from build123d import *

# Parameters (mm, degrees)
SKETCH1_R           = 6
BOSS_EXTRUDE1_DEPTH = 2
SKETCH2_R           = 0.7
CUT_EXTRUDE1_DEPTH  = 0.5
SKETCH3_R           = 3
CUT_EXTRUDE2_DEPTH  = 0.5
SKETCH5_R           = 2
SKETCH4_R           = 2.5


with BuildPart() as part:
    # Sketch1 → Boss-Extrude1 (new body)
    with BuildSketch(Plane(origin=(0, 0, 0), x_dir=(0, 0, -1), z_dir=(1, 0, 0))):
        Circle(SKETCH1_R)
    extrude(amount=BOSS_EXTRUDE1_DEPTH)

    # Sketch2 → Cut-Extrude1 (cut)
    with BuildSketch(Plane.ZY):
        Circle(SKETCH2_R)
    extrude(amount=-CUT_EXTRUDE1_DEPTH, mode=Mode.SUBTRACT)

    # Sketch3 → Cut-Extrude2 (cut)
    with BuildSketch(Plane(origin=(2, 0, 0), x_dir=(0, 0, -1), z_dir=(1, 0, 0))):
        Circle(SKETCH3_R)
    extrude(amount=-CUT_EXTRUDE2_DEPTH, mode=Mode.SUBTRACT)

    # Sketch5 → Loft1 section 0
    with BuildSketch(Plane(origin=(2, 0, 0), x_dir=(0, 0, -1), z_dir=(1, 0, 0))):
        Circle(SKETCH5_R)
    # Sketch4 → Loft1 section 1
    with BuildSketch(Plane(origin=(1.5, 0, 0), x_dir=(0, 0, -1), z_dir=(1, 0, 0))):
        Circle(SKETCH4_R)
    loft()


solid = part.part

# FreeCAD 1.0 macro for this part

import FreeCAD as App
import Part
import Sketcher

doc = App.newDocument("Part")
body = doc.addObject("PartDesign::Body", "Body")

sketch1 = body.newObject("Sketcher::SketchObject", "Sketch")
sketch1.AttachmentSupport = (doc.getObject("YZ_Plane"), [""])
sketch1.MapMode = "FlatFace"
sketch1.addGeometry(Part.Circle(App.Vector(0, 0, 0), App.Vector(0, 0, 1), 6), False)
sketch1.addConstraint(Sketcher.Constraint("Coincident", 0, 3, -1, 1))
sketch1.addConstraint(Sketcher.Constraint("Diameter", 0, 12.0))
pad1 = body.newObject("PartDesign::Pad", "Pad")
pad1.Profile = sketch1
pad1.Length = 2

sketch2 = body.newObject("Sketcher::SketchObject", "Sketch001")
sketch2.AttachmentSupport = (doc.getObject("YZ_Plane"), [""])
sketch2.MapMode = "FlatFace"
sketch2.addGeometry(Part.Circle(App.Vector(0, 0, 0), App.Vector(0, 0, 1), 0.7), False)
sketch2.addConstraint(Sketcher.Constraint("Coincident", 0, 3, -1, 1))
sketch2.addConstraint(Sketcher.Constraint("Diameter", 0, 1.4))
pocket1 = body.newObject("PartDesign::Pocket", "Pocket")
pocket1.Profile = sketch2
pocket1.Length = 0.5
pocket1.Reversed = True

sketch3 = body.newObject("Sketcher::SketchObject", "Sketch002")
sketch3.AttachmentSupport = (doc.getObject("YZ_Plane"), [""])
sketch3.MapMode = "FlatFace"
sketch3.AttachmentOffset = App.Placement(App.Vector(0, 0, 2), App.Rotation())
sketch3.addGeometry(Part.Circle(App.Vector(0, 0, 0), App.Vector(0, 0, 1), 3), False)
sketch3.addConstraint(Sketcher.Constraint("Coincident", 0, 3, -1, 1))
sketch3.addConstraint(Sketcher.Constraint("Diameter", 0, 6.0))
pocket2 = body.newObject("PartDesign::Pocket", "Pocket001")
pocket2.Profile = sketch3
pocket2.Length = 0.5

sketch4 = body.newObject("Sketcher::SketchObject", "Sketch003")
sketch4.AttachmentSupport = (doc.getObject("YZ_Plane"), [""])
sketch4.MapMode = "FlatFace"
sketch4.AttachmentOffset = App.Placement(App.Vector(0, 0, 2), App.Rotation())
sketch4.addGeometry(Part.Circle(App.Vector(0, 0, 0), App.Vector(0, 0, 1), 2), False)
sketch4.addConstraint(Sketcher.Constraint("Coincident", 0, 3, -1, 1))
sketch4.addConstraint(Sketcher.Constraint("Diameter", 0, 4.0))

sketch5 = body.newObject("Sketcher::SketchObject", "Sketch004")
sketch5.AttachmentSupport = (doc.getObject("YZ_Plane"), [""])
sketch5.MapMode = "FlatFace"
sketch5.AttachmentOffset = App.Placement(App.Vector(0, 0, 1.5), App.Rotation())
sketch5.addGeometry(Part.Circle(App.Vector(0, 0, 0), App.Vector(0, 0, 1), 2.5), False)
sketch5.addConstraint(Sketcher.Constraint("Coincident", 0, 3, -1, 1))
sketch5.addConstraint(Sketcher.Constraint("Diameter", 0, 5.0))

additiveloft = body.newObject("PartDesign::AdditiveLoft", "AdditiveLoft")
additiveloft.Profile = sketch4
additiveloft.Sections = [sketch5]

doc.recompute()
